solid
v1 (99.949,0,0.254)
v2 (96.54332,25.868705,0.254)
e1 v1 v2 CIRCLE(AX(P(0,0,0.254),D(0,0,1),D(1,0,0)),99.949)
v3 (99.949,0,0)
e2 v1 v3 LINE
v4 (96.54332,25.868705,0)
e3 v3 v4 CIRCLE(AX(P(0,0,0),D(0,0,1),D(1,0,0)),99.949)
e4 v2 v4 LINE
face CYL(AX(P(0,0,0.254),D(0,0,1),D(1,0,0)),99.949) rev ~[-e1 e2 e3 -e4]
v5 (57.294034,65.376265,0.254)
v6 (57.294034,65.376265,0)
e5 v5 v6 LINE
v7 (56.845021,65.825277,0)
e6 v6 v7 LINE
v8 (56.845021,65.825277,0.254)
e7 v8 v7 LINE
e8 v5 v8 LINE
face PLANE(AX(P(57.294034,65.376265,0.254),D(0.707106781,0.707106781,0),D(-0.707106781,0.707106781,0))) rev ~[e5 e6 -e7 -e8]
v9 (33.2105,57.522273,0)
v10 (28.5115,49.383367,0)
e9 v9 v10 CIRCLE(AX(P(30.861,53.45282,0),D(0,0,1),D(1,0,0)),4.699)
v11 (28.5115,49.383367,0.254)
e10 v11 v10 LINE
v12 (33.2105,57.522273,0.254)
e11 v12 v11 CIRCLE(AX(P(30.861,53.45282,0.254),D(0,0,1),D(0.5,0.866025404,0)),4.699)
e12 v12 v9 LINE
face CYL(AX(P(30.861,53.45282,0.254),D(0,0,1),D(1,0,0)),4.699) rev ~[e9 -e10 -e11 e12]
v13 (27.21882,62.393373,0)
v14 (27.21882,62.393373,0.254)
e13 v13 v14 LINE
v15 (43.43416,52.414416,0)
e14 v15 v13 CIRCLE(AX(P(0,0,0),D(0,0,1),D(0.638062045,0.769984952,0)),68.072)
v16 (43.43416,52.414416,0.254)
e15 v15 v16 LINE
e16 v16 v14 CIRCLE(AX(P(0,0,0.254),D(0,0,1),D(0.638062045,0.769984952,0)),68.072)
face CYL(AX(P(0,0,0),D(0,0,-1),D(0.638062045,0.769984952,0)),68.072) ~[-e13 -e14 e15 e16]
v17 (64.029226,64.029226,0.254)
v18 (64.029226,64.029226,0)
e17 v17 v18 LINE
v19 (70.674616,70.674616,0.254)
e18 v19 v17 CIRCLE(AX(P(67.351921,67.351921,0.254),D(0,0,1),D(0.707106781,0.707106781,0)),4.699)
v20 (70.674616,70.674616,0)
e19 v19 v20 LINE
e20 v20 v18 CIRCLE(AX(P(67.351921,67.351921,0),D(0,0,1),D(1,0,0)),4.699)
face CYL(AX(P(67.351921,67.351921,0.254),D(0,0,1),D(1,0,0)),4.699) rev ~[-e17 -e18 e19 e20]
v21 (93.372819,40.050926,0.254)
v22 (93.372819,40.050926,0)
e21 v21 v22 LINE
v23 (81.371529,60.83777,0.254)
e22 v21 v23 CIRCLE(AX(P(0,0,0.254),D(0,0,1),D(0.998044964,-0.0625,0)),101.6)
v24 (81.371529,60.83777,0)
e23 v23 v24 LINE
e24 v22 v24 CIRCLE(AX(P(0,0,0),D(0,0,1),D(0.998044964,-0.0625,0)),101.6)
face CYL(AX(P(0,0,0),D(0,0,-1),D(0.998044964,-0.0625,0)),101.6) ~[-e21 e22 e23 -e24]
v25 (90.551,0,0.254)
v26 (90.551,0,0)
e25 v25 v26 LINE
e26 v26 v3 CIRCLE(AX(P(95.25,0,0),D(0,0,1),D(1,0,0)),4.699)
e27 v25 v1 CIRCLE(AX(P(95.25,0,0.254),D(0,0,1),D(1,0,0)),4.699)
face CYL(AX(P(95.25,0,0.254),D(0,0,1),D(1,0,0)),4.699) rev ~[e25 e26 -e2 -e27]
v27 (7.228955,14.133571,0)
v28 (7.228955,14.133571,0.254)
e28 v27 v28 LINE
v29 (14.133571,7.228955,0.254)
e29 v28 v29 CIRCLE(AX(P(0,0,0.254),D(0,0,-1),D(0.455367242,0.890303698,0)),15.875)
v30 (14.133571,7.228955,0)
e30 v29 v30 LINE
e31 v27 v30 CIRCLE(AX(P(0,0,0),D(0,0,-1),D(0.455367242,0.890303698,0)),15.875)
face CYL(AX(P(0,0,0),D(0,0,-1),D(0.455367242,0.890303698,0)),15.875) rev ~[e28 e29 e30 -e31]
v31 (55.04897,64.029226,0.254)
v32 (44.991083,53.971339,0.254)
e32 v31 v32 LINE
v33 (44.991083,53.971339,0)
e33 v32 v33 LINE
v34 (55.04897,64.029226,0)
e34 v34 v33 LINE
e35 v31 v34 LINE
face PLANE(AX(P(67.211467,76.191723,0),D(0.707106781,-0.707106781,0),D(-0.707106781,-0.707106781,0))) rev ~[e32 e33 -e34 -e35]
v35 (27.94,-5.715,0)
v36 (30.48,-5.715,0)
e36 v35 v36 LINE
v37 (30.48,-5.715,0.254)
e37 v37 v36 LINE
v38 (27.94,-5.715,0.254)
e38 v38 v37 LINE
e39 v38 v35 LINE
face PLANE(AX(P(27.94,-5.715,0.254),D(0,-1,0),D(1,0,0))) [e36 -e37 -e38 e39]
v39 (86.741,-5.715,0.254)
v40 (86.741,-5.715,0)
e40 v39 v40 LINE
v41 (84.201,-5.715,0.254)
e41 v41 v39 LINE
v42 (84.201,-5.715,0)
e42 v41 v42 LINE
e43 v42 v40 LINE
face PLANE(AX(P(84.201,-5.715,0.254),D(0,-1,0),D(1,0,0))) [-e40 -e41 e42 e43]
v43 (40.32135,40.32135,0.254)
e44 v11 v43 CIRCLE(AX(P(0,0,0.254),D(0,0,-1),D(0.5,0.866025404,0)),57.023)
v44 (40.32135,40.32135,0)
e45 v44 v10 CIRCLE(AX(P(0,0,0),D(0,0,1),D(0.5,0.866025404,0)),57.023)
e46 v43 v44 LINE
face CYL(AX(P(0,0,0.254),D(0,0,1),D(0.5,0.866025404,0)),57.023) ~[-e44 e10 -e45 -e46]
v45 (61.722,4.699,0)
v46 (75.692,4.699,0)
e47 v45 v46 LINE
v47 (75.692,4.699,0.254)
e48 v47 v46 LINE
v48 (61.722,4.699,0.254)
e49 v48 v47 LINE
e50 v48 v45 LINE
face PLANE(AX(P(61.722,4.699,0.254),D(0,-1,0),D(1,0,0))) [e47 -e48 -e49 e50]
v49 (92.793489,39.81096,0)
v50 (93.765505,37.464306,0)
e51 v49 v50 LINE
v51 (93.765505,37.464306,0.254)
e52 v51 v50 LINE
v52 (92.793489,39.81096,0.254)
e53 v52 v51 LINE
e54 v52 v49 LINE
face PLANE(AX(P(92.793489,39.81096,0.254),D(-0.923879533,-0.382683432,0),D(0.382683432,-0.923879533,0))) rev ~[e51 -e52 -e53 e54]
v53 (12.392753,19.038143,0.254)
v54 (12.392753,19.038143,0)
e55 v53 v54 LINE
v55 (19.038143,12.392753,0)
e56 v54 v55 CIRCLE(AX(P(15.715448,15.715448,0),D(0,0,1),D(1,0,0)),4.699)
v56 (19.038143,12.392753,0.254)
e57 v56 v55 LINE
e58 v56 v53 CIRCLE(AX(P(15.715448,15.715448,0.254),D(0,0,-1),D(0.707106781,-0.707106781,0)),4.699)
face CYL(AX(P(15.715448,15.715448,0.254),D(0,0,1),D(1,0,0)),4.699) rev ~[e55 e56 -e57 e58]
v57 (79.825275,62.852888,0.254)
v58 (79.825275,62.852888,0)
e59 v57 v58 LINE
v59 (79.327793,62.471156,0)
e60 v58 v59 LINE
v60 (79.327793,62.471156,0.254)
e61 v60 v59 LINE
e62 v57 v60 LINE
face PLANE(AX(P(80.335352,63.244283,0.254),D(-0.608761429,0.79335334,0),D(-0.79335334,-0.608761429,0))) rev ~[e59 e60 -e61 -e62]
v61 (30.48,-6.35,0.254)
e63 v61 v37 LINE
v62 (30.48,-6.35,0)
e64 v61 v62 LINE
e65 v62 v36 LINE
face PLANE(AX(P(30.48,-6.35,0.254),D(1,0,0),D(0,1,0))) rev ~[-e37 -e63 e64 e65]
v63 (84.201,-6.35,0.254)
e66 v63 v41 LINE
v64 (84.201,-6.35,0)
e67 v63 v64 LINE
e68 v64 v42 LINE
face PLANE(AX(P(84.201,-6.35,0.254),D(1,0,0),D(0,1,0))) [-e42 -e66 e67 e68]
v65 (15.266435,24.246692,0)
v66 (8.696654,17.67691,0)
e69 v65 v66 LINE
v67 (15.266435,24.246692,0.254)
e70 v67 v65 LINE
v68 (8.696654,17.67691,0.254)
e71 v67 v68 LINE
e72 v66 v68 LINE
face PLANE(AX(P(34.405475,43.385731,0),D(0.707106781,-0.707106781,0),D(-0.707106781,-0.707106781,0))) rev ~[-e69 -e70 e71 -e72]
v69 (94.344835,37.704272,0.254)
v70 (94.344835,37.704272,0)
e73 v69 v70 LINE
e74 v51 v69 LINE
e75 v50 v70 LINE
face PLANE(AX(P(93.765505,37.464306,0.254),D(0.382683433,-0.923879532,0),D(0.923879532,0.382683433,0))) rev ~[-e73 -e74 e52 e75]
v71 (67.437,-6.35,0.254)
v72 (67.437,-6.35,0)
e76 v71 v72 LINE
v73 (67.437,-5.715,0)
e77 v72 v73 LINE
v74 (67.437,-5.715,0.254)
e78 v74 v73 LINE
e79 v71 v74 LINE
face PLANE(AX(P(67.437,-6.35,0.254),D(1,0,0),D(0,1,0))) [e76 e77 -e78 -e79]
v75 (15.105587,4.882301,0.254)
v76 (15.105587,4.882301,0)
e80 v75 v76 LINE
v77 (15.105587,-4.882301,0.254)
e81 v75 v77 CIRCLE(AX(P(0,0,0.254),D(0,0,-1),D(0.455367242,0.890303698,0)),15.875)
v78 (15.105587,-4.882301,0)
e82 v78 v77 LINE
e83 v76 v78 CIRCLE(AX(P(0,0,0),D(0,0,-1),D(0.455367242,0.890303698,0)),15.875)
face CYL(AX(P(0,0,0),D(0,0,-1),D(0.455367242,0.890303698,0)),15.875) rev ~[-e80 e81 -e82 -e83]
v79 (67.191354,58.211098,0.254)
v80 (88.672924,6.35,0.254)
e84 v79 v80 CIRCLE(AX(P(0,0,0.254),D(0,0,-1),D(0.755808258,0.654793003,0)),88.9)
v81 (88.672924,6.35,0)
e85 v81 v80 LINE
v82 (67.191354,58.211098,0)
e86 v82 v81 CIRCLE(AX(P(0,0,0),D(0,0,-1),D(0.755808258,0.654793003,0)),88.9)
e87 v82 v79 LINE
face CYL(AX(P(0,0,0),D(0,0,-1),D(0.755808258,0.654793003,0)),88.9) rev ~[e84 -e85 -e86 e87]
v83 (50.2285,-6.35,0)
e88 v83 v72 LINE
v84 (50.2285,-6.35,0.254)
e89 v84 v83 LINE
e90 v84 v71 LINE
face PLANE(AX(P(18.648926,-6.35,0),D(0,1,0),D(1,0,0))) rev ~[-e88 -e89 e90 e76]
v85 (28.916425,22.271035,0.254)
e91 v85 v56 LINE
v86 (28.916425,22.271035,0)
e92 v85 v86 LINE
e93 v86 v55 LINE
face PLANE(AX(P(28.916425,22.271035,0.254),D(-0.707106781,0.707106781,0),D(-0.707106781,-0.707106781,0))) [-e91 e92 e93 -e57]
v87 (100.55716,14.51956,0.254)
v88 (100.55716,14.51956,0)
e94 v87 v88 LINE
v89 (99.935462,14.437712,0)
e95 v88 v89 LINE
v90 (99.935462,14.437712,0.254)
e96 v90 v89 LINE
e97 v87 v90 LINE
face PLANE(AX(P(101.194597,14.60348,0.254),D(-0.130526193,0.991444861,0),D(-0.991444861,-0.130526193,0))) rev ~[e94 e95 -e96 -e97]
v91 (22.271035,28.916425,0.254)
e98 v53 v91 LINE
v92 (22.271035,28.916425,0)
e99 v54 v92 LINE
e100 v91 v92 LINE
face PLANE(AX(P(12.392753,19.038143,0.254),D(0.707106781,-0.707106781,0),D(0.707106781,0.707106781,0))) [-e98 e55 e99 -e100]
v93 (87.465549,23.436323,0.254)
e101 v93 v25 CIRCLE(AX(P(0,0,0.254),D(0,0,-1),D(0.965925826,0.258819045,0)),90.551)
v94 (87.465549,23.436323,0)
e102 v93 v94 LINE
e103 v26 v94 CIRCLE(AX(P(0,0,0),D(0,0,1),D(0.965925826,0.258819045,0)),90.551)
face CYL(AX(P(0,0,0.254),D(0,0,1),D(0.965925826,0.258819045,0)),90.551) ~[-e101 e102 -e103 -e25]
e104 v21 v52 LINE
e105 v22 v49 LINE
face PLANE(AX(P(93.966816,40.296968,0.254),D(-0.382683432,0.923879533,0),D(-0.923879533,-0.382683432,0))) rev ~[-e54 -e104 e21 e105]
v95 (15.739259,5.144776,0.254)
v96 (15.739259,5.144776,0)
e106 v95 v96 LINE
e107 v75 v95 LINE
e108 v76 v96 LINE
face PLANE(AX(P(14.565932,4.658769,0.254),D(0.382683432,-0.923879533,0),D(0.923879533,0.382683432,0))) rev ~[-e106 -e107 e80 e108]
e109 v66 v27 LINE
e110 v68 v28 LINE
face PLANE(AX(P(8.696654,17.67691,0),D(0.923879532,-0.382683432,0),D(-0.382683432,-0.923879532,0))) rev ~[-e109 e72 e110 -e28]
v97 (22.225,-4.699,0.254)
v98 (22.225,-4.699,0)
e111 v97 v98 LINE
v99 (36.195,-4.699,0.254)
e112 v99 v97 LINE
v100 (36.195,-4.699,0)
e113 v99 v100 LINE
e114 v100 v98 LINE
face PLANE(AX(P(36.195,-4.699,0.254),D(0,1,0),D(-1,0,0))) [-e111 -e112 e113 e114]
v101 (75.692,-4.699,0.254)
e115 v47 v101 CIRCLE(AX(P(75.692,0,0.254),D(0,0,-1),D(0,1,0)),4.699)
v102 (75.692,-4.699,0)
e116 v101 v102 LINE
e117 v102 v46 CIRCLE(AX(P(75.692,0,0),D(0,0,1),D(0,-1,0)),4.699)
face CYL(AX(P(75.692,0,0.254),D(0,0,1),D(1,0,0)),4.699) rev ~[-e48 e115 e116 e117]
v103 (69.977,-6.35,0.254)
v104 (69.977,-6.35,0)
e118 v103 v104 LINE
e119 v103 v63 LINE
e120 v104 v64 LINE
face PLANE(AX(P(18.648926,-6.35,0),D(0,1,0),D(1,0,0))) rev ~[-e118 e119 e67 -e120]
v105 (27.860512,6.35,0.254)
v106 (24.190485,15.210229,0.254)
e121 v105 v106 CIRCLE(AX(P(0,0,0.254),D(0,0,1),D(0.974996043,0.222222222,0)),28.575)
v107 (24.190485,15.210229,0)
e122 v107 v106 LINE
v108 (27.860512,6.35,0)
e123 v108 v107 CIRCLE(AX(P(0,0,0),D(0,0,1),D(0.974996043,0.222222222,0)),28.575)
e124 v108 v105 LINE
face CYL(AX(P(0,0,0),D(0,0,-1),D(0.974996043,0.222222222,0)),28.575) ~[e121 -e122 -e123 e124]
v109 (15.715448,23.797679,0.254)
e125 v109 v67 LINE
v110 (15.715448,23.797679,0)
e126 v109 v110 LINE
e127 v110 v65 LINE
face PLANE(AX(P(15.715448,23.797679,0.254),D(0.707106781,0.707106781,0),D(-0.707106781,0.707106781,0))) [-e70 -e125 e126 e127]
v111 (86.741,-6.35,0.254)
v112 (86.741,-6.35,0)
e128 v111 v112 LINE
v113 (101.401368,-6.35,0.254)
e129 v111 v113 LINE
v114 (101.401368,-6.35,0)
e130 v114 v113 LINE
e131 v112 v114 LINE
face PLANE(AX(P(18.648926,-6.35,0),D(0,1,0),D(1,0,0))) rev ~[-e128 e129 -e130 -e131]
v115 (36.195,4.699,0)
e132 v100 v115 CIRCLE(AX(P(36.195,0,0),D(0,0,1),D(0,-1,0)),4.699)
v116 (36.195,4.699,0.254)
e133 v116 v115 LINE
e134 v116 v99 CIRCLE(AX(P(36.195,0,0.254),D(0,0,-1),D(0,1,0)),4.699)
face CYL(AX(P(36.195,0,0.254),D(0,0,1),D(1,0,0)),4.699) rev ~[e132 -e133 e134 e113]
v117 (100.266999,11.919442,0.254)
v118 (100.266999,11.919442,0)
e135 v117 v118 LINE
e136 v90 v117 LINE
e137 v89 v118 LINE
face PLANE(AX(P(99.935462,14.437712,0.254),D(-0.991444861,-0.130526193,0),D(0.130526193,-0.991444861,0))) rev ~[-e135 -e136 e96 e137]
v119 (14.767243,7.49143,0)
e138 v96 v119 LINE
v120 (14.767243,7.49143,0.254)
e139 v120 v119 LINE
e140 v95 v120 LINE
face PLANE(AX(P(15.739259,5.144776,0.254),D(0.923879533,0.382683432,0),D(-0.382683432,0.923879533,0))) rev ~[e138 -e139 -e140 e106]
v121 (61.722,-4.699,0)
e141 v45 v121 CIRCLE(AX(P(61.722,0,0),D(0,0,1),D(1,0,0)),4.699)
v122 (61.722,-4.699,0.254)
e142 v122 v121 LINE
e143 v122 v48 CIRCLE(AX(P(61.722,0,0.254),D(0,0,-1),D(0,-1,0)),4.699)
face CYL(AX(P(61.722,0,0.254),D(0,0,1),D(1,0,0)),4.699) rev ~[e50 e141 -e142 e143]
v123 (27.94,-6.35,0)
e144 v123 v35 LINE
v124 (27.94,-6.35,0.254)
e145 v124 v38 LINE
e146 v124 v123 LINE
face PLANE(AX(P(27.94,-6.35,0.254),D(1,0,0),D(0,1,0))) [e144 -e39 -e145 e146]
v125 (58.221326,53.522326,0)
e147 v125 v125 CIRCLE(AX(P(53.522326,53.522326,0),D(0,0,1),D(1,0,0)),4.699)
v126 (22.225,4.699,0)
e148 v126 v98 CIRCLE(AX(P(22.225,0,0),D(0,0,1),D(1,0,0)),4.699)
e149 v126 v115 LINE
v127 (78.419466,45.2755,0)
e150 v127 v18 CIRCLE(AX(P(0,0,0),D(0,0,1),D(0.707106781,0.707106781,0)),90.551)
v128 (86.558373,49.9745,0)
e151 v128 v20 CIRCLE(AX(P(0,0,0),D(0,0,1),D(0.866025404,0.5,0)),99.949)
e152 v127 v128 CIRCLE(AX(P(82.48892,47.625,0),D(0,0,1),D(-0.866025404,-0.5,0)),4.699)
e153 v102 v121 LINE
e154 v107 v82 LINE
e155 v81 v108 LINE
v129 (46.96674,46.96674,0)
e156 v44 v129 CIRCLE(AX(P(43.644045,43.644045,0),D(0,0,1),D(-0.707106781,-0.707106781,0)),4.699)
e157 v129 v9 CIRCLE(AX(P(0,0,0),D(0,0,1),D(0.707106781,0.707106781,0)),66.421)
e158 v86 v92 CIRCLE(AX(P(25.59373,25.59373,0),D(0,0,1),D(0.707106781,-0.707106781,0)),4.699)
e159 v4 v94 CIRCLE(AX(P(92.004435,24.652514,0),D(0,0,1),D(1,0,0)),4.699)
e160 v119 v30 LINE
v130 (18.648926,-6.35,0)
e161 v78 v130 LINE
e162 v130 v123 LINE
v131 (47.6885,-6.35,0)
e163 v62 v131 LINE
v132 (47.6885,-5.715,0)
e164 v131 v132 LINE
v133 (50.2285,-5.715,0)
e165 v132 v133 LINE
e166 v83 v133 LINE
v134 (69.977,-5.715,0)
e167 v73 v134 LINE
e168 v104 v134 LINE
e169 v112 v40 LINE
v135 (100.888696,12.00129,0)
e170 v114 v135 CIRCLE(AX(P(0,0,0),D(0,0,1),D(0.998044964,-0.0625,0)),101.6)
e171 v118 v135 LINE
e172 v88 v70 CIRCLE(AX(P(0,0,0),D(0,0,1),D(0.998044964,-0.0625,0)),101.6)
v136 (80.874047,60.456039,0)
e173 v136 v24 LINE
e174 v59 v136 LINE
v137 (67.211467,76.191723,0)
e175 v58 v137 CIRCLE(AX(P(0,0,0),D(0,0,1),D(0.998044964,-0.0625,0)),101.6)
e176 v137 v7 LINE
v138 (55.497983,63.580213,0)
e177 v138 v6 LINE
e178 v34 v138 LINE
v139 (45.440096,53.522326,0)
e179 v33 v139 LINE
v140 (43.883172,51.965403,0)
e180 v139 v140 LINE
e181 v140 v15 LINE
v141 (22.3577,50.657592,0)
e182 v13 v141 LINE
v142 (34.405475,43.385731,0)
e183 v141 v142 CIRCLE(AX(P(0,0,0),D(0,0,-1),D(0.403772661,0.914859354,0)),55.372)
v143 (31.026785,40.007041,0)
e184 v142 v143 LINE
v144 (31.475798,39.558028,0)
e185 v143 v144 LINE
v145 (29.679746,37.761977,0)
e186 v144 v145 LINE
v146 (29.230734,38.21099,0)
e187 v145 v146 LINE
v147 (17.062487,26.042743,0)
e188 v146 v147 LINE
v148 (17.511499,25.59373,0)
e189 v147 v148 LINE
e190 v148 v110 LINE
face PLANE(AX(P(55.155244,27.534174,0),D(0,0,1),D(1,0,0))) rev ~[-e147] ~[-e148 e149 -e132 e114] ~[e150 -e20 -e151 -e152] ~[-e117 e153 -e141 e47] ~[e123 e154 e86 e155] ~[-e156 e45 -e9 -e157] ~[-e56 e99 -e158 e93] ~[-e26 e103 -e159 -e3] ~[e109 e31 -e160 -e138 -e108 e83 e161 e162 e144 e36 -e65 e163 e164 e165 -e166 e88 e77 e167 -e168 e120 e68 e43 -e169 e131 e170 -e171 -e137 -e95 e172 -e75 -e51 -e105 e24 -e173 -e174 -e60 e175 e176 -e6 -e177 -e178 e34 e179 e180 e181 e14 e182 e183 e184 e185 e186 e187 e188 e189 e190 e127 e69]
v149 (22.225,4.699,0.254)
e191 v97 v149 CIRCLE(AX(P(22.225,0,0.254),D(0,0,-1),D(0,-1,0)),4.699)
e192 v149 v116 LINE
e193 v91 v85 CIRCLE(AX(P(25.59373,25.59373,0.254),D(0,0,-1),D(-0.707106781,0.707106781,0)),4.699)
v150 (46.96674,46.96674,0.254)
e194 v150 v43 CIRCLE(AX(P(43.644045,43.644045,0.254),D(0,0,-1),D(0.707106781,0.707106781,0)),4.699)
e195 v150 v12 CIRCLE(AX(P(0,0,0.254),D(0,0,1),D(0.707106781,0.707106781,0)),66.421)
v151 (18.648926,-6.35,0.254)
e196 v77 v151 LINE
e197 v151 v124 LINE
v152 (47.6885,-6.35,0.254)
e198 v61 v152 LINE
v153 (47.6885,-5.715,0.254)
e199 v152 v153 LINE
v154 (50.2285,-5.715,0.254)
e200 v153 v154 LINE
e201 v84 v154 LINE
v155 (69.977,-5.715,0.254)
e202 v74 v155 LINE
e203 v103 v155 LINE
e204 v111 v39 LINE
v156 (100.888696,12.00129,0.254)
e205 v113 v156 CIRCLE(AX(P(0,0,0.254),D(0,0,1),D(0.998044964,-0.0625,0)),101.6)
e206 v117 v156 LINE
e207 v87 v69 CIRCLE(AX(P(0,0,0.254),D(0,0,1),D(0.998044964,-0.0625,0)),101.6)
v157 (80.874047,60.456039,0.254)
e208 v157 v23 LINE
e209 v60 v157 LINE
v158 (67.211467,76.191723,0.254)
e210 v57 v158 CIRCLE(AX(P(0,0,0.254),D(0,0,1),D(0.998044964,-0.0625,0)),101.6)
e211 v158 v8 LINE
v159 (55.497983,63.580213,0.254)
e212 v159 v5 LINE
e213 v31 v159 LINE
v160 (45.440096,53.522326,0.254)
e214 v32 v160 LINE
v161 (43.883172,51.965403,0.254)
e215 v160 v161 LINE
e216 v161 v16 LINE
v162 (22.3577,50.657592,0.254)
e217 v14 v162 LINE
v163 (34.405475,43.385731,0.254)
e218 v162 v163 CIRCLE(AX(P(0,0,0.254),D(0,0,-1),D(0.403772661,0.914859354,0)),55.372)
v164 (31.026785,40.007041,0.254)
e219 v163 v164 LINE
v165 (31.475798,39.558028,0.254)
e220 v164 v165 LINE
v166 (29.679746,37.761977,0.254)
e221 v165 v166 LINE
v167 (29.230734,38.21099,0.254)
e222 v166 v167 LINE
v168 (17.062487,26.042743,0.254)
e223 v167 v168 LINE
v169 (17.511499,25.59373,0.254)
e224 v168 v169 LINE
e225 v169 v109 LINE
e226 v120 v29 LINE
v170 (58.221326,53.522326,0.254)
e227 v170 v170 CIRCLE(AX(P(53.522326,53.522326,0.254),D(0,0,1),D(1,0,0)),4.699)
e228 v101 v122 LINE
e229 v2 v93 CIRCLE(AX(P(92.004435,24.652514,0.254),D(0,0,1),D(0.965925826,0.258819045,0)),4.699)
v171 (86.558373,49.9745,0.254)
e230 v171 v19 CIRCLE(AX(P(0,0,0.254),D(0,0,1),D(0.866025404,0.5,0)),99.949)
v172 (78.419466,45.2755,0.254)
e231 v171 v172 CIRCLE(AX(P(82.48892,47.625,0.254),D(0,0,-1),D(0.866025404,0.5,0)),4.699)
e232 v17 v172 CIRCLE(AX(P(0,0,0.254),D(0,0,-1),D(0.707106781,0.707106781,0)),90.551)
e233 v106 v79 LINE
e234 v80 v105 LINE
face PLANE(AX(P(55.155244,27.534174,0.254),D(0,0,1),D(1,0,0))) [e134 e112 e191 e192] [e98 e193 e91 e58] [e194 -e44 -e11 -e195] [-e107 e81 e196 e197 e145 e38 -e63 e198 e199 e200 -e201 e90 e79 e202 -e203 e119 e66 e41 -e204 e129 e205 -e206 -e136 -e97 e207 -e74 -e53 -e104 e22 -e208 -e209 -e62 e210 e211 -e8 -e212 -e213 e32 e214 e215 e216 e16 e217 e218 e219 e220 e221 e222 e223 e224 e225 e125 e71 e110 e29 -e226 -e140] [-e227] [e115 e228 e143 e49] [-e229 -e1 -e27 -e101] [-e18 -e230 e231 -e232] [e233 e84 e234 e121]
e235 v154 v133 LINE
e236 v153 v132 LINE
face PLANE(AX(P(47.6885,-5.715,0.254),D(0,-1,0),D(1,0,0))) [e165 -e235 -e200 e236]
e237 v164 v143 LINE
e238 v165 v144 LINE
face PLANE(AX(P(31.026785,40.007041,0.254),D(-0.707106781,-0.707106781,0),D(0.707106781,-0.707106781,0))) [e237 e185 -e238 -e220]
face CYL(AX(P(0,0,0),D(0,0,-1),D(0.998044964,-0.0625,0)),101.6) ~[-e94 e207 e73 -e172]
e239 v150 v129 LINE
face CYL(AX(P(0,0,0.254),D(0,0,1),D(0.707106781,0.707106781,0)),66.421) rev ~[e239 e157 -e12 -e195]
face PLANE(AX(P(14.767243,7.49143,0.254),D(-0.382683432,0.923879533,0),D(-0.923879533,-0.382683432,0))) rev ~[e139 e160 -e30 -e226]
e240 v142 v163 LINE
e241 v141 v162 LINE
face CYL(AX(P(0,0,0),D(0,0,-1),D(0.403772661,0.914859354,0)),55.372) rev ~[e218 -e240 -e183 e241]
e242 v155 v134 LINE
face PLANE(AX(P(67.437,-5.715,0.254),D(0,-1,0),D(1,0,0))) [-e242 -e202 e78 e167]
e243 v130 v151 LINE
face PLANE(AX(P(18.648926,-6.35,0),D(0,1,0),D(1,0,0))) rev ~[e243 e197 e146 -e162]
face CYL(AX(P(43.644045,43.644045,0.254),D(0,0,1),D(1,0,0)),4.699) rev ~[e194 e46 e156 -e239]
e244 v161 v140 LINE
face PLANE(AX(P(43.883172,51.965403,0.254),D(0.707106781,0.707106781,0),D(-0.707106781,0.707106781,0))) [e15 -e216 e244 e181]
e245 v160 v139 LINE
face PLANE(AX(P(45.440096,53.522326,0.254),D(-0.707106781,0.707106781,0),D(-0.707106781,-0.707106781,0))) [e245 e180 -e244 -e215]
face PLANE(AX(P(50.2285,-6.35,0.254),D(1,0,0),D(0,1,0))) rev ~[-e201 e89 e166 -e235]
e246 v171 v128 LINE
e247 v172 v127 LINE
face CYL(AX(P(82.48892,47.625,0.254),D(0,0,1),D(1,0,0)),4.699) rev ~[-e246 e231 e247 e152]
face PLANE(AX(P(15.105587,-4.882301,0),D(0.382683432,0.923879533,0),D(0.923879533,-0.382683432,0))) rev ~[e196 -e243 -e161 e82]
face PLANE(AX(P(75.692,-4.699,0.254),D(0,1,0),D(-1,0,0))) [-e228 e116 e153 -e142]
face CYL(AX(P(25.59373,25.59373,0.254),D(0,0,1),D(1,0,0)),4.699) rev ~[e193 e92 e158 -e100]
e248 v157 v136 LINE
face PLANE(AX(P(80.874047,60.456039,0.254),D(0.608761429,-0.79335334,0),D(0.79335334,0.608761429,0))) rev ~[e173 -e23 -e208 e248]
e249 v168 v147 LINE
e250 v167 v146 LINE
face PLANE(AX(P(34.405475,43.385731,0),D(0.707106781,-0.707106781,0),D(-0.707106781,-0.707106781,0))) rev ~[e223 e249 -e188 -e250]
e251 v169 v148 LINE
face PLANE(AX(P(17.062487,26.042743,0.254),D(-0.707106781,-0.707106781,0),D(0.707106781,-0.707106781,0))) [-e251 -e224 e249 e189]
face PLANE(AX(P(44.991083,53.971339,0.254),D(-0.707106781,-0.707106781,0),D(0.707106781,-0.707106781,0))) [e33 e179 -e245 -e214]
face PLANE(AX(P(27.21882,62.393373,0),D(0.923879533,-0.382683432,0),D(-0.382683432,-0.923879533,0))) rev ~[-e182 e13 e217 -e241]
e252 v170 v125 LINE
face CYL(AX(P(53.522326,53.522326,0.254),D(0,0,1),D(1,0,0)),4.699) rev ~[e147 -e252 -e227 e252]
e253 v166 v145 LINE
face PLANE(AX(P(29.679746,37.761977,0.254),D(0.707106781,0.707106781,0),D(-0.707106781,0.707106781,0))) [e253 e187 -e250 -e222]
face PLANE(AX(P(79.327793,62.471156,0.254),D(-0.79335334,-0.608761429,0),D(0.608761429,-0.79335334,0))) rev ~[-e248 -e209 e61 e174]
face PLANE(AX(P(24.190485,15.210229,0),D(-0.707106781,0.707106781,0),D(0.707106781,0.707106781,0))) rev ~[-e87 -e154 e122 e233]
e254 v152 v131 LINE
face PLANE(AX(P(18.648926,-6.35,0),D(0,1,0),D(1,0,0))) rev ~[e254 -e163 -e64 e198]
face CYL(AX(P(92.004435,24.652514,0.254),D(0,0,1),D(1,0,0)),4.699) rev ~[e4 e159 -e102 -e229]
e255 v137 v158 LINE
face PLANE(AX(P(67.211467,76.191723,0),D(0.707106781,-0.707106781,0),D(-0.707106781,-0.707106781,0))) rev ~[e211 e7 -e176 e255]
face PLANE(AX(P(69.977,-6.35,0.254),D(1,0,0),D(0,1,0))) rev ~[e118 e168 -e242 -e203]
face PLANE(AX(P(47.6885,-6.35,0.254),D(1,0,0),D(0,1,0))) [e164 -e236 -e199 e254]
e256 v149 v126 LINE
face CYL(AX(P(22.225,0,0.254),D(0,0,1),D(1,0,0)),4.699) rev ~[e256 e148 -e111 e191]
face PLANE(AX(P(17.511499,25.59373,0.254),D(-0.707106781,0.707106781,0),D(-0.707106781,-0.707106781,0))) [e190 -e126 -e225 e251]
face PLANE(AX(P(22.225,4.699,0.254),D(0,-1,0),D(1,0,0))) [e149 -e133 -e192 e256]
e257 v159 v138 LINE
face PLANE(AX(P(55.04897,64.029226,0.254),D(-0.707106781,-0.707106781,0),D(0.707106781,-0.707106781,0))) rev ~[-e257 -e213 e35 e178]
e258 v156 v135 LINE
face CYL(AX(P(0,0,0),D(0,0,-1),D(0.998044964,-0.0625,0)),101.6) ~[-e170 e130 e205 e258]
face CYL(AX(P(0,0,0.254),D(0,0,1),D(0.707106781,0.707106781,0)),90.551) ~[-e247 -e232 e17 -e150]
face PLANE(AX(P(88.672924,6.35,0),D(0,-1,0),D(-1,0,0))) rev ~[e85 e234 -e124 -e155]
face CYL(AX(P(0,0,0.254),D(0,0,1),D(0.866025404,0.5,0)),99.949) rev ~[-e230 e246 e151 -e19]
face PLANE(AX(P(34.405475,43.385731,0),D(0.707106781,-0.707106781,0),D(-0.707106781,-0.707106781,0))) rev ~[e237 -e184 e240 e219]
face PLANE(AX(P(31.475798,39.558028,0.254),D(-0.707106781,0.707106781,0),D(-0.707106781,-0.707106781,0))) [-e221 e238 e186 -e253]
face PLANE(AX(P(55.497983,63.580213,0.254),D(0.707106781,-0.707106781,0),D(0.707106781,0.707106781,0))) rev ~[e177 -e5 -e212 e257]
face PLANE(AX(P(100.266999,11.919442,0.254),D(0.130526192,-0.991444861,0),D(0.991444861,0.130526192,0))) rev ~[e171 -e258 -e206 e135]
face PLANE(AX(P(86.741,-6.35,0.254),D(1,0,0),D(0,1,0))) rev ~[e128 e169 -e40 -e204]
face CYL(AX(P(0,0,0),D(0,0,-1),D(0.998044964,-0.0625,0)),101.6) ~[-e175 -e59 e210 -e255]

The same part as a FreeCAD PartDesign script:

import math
import FreeCAD as App
import Part
import Sketcher

V = App.Vector
Q = App.Units.Quantity

doc = App.newDocument("Part")
body = doc.addObject("PartDesign::Body", "Body")

sketch1 = body.newObject("Sketcher::SketchObject", "Sketch")
sketch1.AttachmentSupport = (doc.getObject("XY_Plane"), [""])
sketch1.MapMode = "FlatFace"
sketch1.addGeometry([
    Part.LineSegment(V(27.21882, 62.393373, 0), V(22.3577, 50.657592, 0)),
    Part.ArcOfCircle(Part.Circle(V(0, 0, 0), V(0, 0, 1), 55.372), math.radians(51.585105), math.radians(66.185761)),
    Part.LineSegment(V(34.405475, 43.385731, 0), V(8.696654, 17.67691, 0)),
    Part.LineSegment(V(8.696654, 17.67691, 0), V(7.228955, 14.133571, 0)),
    Part.ArcOfCircle(Part.Circle(V(0, 0, 0), V(0, 0, 1), 15.875), math.radians(-17.911434), math.radians(62.911434)),
    Part.LineSegment(V(15.105587, -4.882301, 0), V(18.648926, -6.35, 0)),
    Part.LineSegment(V(18.648926, -6.35, 0), V(101.401368, -6.35, 0)),
    Part.ArcOfCircle(Part.Circle(V(0, 0, 0), V(0, 0, 1), 101.6), math.radians(-3.583322), math.radians(48.583322)),
    Part.LineSegment(V(67.211467, 76.191723, 0), V(43.43416, 52.414416, 0)),
    Part.ArcOfCircle(Part.Circle(V(0, 0, 0), V(0, 0, 1), 68.072), math.radians(50.352538), math.radians(66.430987)),
    Part.ArcOfCircle(Part.Circle(V(0, 0, 0), V(0, 0, 1), 88.9), math.radians(4.096044), math.radians(40.903956)),
    Part.LineSegment(V(88.672924, 6.35, 0), V(27.860512, 6.35, 0)),
    Part.ArcOfCircle(Part.Circle(V(0, 0, 0), V(0, 0, 1), 28.575), math.radians(12.839588), math.radians(32.160412)),
    Part.LineSegment(V(24.190485, 15.210229, 0), V(67.191354, 58.211098, 0)),
], False)
sketch1.addConstraint([
    Sketcher.Constraint("Coincident", 0, 2, 1, 2),
    Sketcher.Constraint("Coincident", 1, 1, 2, 1),
    Sketcher.Constraint("Coincident", 2, 2, 3, 1),
    Sketcher.Constraint("Coincident", 3, 2, 4, 2),
    Sketcher.Constraint("Coincident", 4, 1, 5, 1),
    Sketcher.Constraint("Coincident", 5, 2, 6, 1),
    Sketcher.Constraint("Coincident", 6, 2, 7, 1),
    Sketcher.Constraint("Coincident", 7, 2, 8, 1),
    Sketcher.Constraint("Coincident", 8, 2, 9, 1),
    Sketcher.Constraint("Coincident", 9, 2, 0, 1),
    Sketcher.Constraint("Coincident", 10, 1, 11, 1),
    Sketcher.Constraint("Coincident", 11, 2, 12, 1),
    Sketcher.Constraint("Coincident", 12, 2, 13, 1),
    Sketcher.Constraint("Coincident", 13, 2, 10, 2),
    Sketcher.Constraint("Horizontal", 6),
    Sketcher.Constraint("Horizontal", 11),
    Sketcher.Constraint("Coincident", 1, 3, -1, 1),
    Sketcher.Constraint("Coincident", 4, 3, -1, 1),
    Sketcher.Constraint("Coincident", 7, 3, -1, 1),
    Sketcher.Constraint("Coincident", 9, 3, -1, 1),
    Sketcher.Constraint("Coincident", 10, 3, -1, 1),
    Sketcher.Constraint("Coincident", 12, 3, -1, 1),
    Sketcher.Constraint("Parallel", 0, 3),
    Sketcher.Constraint("Perpendicular", 3, 5),
    Sketcher.Constraint("Parallel", 2, 8),
    Sketcher.Constraint("Parallel", 8, 13),
    Sketcher.Constraint("Equal", 3, 5),
    Sketcher.Constraint("Radius", 7, Q("4 in")),
    Sketcher.Constraint("Radius", 10, Q("3.5 in")),
    Sketcher.Constraint("Radius", 1, Q("2.18 in")),
    Sketcher.Constraint("Radius", 9, Q("2.68 in")),
    Sketcher.Constraint("Angle", 2, Q("-135 deg")),
    Sketcher.Constraint("Radius", 4, Q("0.625 in")),
    Sketcher.Constraint("Radius", 12, Q("1.125 in")),
    Sketcher.Constraint("Angle", 0, Q("-112.5 deg")),
    Sketcher.Constraint("DistanceY", 6, 2, 10, 1, Q("0.5 in")),
    Sketcher.Constraint("DistanceY", 5, 2, -1, 1, Q("0.25 in")),
    Sketcher.Constraint("DistanceX", -1, 1, 0, 2, 22.3577),
    Sketcher.Constraint("DistanceY", 4, 1, -1, 1, 4.882301),
    Sketcher.Constraint("DistanceY", -1, 1, 13, 2, 58.211098),
    Sketcher.Constraint("DistanceX", 7, 2, 6, 2, 34.189901),
    Sketcher.Constraint("DistanceY", -1, 1, 1, 1, 43.385731),
])
pad1 = body.newObject("PartDesign::Pad", "Pad")
pad1.Profile = sketch1
pad1.Length = Q("0.01 in")

sketch2 = body.newObject("Sketcher::SketchObject", "Sketch001")
sketch2.AttachmentSupport = (doc.getObject("XY_Plane"), [""])
sketch2.MapMode = "FlatFace"
sketch2.AttachmentOffset = App.Placement(V(0, 0, 0.01 * 25.4), App.Rotation())
sketch2.addGeometry([
    Part.Circle(V(22.225, 0, 0), V(0, 0, 1), 4.699),
    Part.Circle(V(36.195, 0, 0), V(0, 0, 1), 4.699),
    Part.Circle(V(61.722, 0, 0), V(0, 0, 1), 4.699),
    Part.Circle(V(75.692, 0, 0), V(0, 0, 1), 4.699),
    Part.Circle(V(95.25, 0, 0), V(0, 0, 1), 4.699),
    Part.Circle(V(15.715448, 15.715448, 0), V(0, 0, 1), 4.699),
    Part.Circle(V(25.59373, 25.59373, 0), V(0, 0, 1), 4.699),
    Part.Circle(V(43.644045, 43.644045, 0), V(0, 0, 1), 4.699),
    Part.Circle(V(53.522326, 53.522326, 0), V(0, 0, 1), 4.699),
    Part.Circle(V(92.004435, 24.652514, 0), V(0, 0, 1), 4.699),
    Part.Circle(V(82.48892, 47.625, 0), V(0, 0, 1), 4.699),
    Part.Circle(V(67.351921, 67.351921, 0), V(0, 0, 1), 4.699),
    Part.Circle(V(30.861, 53.45282, 0), V(0, 0, 1), 4.699),
], False)
sketch2.addConstraint([
    Sketcher.Constraint("Equal", 0, 1),
    Sketcher.Constraint("Equal", 1, 2),
    Sketcher.Constraint("Equal", 2, 3),
    Sketcher.Constraint("Equal", 3, 4),
    Sketcher.Constraint("Equal", 4, 5),
    Sketcher.Constraint("Equal", 5, 6),
    Sketcher.Constraint("Equal", 6, 7),
    Sketcher.Constraint("Equal", 7, 8),
    Sketcher.Constraint("Equal", 8, 9),
    Sketcher.Constraint("Equal", 9, 10),
    Sketcher.Constraint("Equal", 10, 11),
    Sketcher.Constraint("Equal", 11, 12),
    Sketcher.Constraint("PointOnObject", 0, 3, -1),
    Sketcher.Constraint("PointOnObject", 1, 3, -1),
    Sketcher.Constraint("PointOnObject", 2, 3, -1),
    Sketcher.Constraint("PointOnObject", 3, 3, -1),
    Sketcher.Constraint("PointOnObject", 4, 3, -1),
    Sketcher.Constraint("Diameter", 0, Q("0.37 in")),
    Sketcher.Constraint("DistanceX", -1, 1, 2, 3, Q("2.43 in")),
    Sketcher.Constraint("DistanceX", -1, 1, 3, 3, Q("2.98 in")),
    Sketcher.Constraint("DistanceX", -1, 1, 4, 3, Q("3.75 in")),
    Sketcher.Constraint("DistanceX", 0, 3, 1, 3, Q("0.55 in")),
    Sketcher.Constraint("DistanceX", -1, 1, 0, 3, Q("0.875 in")),
    Sketcher.Constraint("DistanceY", -1, 1, 10, 3, Q("1.875 in")),
    Sketcher.Constraint("DistanceX", -1, 1, 12, 3, Q("1.215 in")),
    Sketcher.Constraint("DistanceX", 11, 3, 10, 3, 15.136999),
    Sketcher.Constraint("DistanceY", 12, 3, 11, 3, 13.899101),
    Sketcher.Constraint("DistanceX", -1, 1, 5, 3, 15.715448),
    Sketcher.Constraint("DistanceY", -1, 1, 5, 3, 15.715448),
    Sketcher.Constraint("DistanceX", -1, 1, 6, 3, 25.59373),
    Sketcher.Constraint("DistanceY", -1, 1, 6, 3, 25.59373),
    Sketcher.Constraint("DistanceX", -1, 1, 10, 3, 82.48892),
    Sketcher.Constraint("DistanceY", -1, 1, 11, 3, 67.351921),
    Sketcher.Constraint("DistanceX", 7, 3, 8, 3, 9.878282),
    Sketcher.Constraint("DistanceY", 7, 3, 8, 3, 9.878282),
    Sketcher.Constraint("DistanceX", 5, 3, 8, 3, 37.806878),
    Sketcher.Constraint("DistanceY", 5, 3, 8, 3, 37.806878),
    Sketcher.Constraint("DistanceX", 8, 3, 9, 3, 38.482108),
    Sketcher.Constraint("DistanceY", 9, 3, 7, 3, 18.991531),
])
pocket1 = body.newObject("PartDesign::Pocket", "Pocket")
pocket1.Profile = sketch2
pocket1.Type = "ThroughAll"

sketch3 = body.newObject("Sketcher::SketchObject", "Sketch002")
sketch3.AttachmentSupport = (doc.getObject("XY_Plane"), [""])
sketch3.MapMode = "FlatFace"
sketch3.AttachmentOffset = App.Placement(V(0, 0, 0.01 * 25.4), App.Rotation())
sketch3.addGeometry([
    Part.LineSegment(V(17.062487, 26.042743, 0), V(15.266435, 24.246692, 0)),
    Part.LineSegment(V(15.266435, 24.246692, 0), V(15.715448, 23.797679, 0)),
    Part.LineSegment(V(15.715448, 23.797679, 0), V(17.511499, 25.59373, 0)),
    Part.LineSegment(V(17.511499, 25.59373, 0), V(17.062487, 26.042743, 0)),
    Part.LineSegment(V(44.991083, 53.971339, 0), V(43.43416, 52.414416, 0)),
    Part.LineSegment(V(43.43416, 52.414416, 0), V(43.883172, 51.965403, 0)),
    Part.LineSegment(V(43.883172, 51.965403, 0), V(45.440096, 53.522326, 0)),
    Part.LineSegment(V(45.440096, 53.522326, 0), V(44.991083, 53.971339, 0)),
    Part.LineSegment(V(27.94, -5.715, 0), V(27.94, -6.35, 0)),
    Part.LineSegment(V(27.94, -6.35, 0), V(30.48, -6.35, 0)),
    Part.LineSegment(V(30.48, -6.35, 0), V(30.48, -5.715, 0)),
    Part.LineSegment(V(30.48, -5.715, 0), V(27.94, -5.715, 0)),
    Part.LineSegment(V(67.437, -5.715, 0), V(67.437, -6.35, 0)),
    Part.LineSegment(V(67.437, -6.35, 0), V(69.977, -6.35, 0)),
    Part.LineSegment(V(69.977, -6.35, 0), V(69.977, -5.715, 0)),
    Part.LineSegment(V(69.977, -5.715, 0), V(67.437, -5.715, 0)),
    Part.LineSegment(V(31.026785, 40.007041, 0), V(29.230734, 38.21099, 0)),
    Part.LineSegment(V(29.230734, 38.21099, 0), V(29.679746, 37.761977, 0)),
    Part.LineSegment(V(29.679746, 37.761977, 0), V(31.475798, 39.558028, 0)),
    Part.LineSegment(V(31.475798, 39.558028, 0), V(31.026785, 40.007041, 0)),
    Part.LineSegment(V(56.845021, 65.825277, 0), V(55.04897, 64.029226, 0)),
    Part.LineSegment(V(55.04897, 64.029226, 0), V(55.497983, 63.580213, 0)),
    Part.LineSegment(V(55.497983, 63.580213, 0), V(57.294034, 65.376265, 0)),
    Part.LineSegment(V(57.294034, 65.376265, 0), V(56.845021, 65.825277, 0)),
    Part.LineSegment(V(47.6885, -5.715, 0), V(47.6885, -6.35, 0)),
    Part.LineSegment(V(47.6885, -6.35, 0), V(50.2285, -6.35, 0)),
    Part.LineSegment(V(50.2285, -6.35, 0), V(50.2285, -5.715, 0)),
    Part.LineSegment(V(50.2285, -5.715, 0), V(47.6885, -5.715, 0)),
    Part.LineSegment(V(84.201, -5.715, 0), V(84.201, -6.35, 0)),
    Part.LineSegment(V(84.201, -6.35, 0), V(86.741, -6.35, 0)),
    Part.LineSegment(V(86.741, -6.35, 0), V(86.741, -5.715, 0)),
    Part.LineSegment(V(86.741, -5.715, 0), V(84.201, -5.715, 0)),
    Part.LineSegment(V(99.935462, 14.437712, 0), V(100.266999, 11.919442, 0)),
    Part.LineSegment(V(100.266999, 11.919442, 0), V(101.526134, 12.08521, 0)),
    Part.LineSegment(V(101.526134, 12.08521, 0), V(101.194597, 14.60348, 0)),
    Part.LineSegment(V(101.194597, 14.60348, 0), V(99.935462, 14.437712, 0)),
    Part.LineSegment(V(93.765505, 37.464306, 0), V(94.938832, 37.950314, 0)),
    Part.LineSegment(V(94.938832, 37.950314, 0), V(93.966816, 40.296968, 0)),
    Part.LineSegment(V(93.966816, 40.296968, 0), V(92.793489, 39.81096, 0)),
    Part.LineSegment(V(92.793489, 39.81096, 0), V(93.765505, 37.464306, 0)),
    Part.LineSegment(V(79.327793, 62.471156, 0), V(80.874047, 60.456039, 0)),
    Part.LineSegment(V(80.874047, 60.456039, 0), V(81.881606, 61.229166, 0)),
    Part.LineSegment(V(81.881606, 61.229166, 0), V(80.335352, 63.244283, 0)),
    Part.LineSegment(V(80.335352, 63.244283, 0), V(79.327793, 62.471156, 0)),
    Part.LineSegment(V(13.593916, 7.005423, 0), V(14.565932, 4.658769, 0)),
    Part.LineSegment(V(14.565932, 4.658769, 0), V(15.739259, 5.144776, 0)),
    Part.LineSegment(V(15.739259, 5.144776, 0), V(14.767243, 7.49143, 0)),
    Part.LineSegment(V(14.767243, 7.49143, 0), V(13.593916, 7.005423, 0)),
], False)
sketch3.addConstraint([
    Sketcher.Constraint("Coincident", 0, 2, 1, 1),
    Sketcher.Constraint("Coincident", 1, 2, 2, 1),
    Sketcher.Constraint("Coincident", 2, 2, 3, 1),
    Sketcher.Constraint("Coincident", 3, 2, 0, 1),
    Sketcher.Constraint("Coincident", 4, 2, 5, 1),
    Sketcher.Constraint("Coincident", 5, 2, 6, 1),
    Sketcher.Constraint("Coincident", 6, 2, 7, 1),
    Sketcher.Constraint("Coincident", 7, 2, 4, 1),
    Sketcher.Constraint("Coincident", 8, 2, 9, 1),
    Sketcher.Constraint("Coincident", 9, 2, 10, 1),
    Sketcher.Constraint("Coincident", 10, 2, 11, 1),
    Sketcher.Constraint("Coincident", 11, 2, 8, 1),
    Sketcher.Constraint("Coincident", 12, 2, 13, 1),
    Sketcher.Constraint("Coincident", 13, 2, 14, 1),
    Sketcher.Constraint("Coincident", 14, 2, 15, 1),
    Sketcher.Constraint("Coincident", 15, 2, 12, 1),
    Sketcher.Constraint("Coincident", 16, 2, 17, 1),
    Sketcher.Constraint("Coincident", 17, 2, 18, 1),
    Sketcher.Constraint("Coincident", 18, 2, 19, 1),
    Sketcher.Constraint("Coincident", 19, 2, 16, 1),
    Sketcher.Constraint("Coincident", 20, 2, 21, 1),
    Sketcher.Constraint("Coincident", 21, 2, 22, 1),
    Sketcher.Constraint("Coincident", 22, 2, 23, 1),
    Sketcher.Constraint("Coincident", 23, 2, 20, 1),
    Sketcher.Constraint("Coincident", 24, 2, 25, 1),
    Sketcher.Constraint("Coincident", 25, 2, 26, 1),
    Sketcher.Constraint("Coincident", 26, 2, 27, 1),
    Sketcher.Constraint("Coincident", 27, 2, 24, 1),
    Sketcher.Constraint("Coincident", 28, 2, 29, 1),
    Sketcher.Constraint("Coincident", 29, 2, 30, 1),
    Sketcher.Constraint("Coincident", 30, 2, 31, 1),
    Sketcher.Constraint("Coincident", 31, 2, 28, 1),
    Sketcher.Constraint("Coincident", 32, 2, 33, 1),
    Sketcher.Constraint("Coincident", 33, 2, 34, 1),
    Sketcher.Constraint("Coincident", 34, 2, 35, 1),
    Sketcher.Constraint("Coincident", 35, 2, 32, 1),
    Sketcher.Constraint("Coincident", 36, 2, 37, 1),
    Sketcher.Constraint("Coincident", 37, 2, 38, 1),
    Sketcher.Constraint("Coincident", 38, 2, 39, 1),
    Sketcher.Constraint("Coincident", 39, 2, 36, 1),
    Sketcher.Constraint("Coincident", 40, 2, 41, 1),
    Sketcher.Constraint("Coincident", 41, 2, 42, 1),
    Sketcher.Constraint("Coincident", 42, 2, 43, 1),
    Sketcher.Constraint("Coincident", 43, 2, 40, 1),
    Sketcher.Constraint("Coincident", 44, 2, 45, 1),
    Sketcher.Constraint("Coincident", 45, 2, 46, 1),
    Sketcher.Constraint("Coincident", 46, 2, 47, 1),
    Sketcher.Constraint("Coincident", 47, 2, 44, 1),
    Sketcher.Constraint("Vertical", 8),
    Sketcher.Constraint("Horizontal", 9),
    Sketcher.Constraint("Vertical", 10),
    Sketcher.Constraint("Horizontal", 11),
    Sketcher.Constraint("Vertical", 12),
    Sketcher.Constraint("Horizontal", 13),
    Sketcher.Constraint("Vertical", 14),
    Sketcher.Constraint("Horizontal", 15),
    Sketcher.Constraint("Vertical", 24),
    Sketcher.Constraint("Horizontal", 25),
    Sketcher.Constraint("Vertical", 26),
    Sketcher.Constraint("Horizontal", 27),
    Sketcher.Constraint("Vertical", 28),
    Sketcher.Constraint("Horizontal", 29),
    Sketcher.Constraint("Vertical", 30),
    Sketcher.Constraint("Horizontal", 31),
    Sketcher.Constraint("Perpendicular", 0, 1),
    Sketcher.Constraint("Perpendicular", 1, 2),
    Sketcher.Constraint("Perpendicular", 2, 3),
    Sketcher.Constraint("Perpendicular", 3, 4),
    Sketcher.Constraint("Perpendicular", 4, 5),
    Sketcher.Constraint("Perpendicular", 5, 6),
    Sketcher.Constraint("Perpendicular", 6, 7),
    Sketcher.Constraint("Perpendicular", 7, 16),
    Sketcher.Constraint("Perpendicular", 16, 17),
    Sketcher.Constraint("Perpendicular", 17, 18),
    Sketcher.Constraint("Perpendicular", 18, 19),
    Sketcher.Constraint("Perpendicular", 19, 20),
    Sketcher.Constraint("Perpendicular", 20, 21),
    Sketcher.Constraint("Perpendicular", 21, 22),
    Sketcher.Constraint("Perpendicular", 22, 23),
    Sketcher.Constraint("Perpendicular", 32, 33),
    Sketcher.Constraint("Perpendicular", 33, 34),
    Sketcher.Constraint("Perpendicular", 34, 35),
    Sketcher.Constraint("Perpendicular", 36, 37),
    Sketcher.Constraint("Perpendicular", 37, 38),
    Sketcher.Constraint("Perpendicular", 38, 39),
    Sketcher.Constraint("Perpendicular", 40, 41),
    Sketcher.Constraint("Perpendicular", 41, 42),
    Sketcher.Constraint("Perpendicular", 42, 43),
    Sketcher.Constraint("Parallel", 39, 44),
    Sketcher.Constraint("Perpendicular", 44, 45),
    Sketcher.Constraint("Perpendicular", 45, 46),
    Sketcher.Constraint("Perpendicular", 46, 47),
    Sketcher.Constraint("Horizontal", 9, 2, 12, 2),
    Sketcher.Constraint("Horizontal", 11, 2, 14, 2),
    Sketcher.Constraint("Horizontal", 13, 2, 24, 2),
    Sketcher.Constraint("Horizontal", 15, 2, 26, 2),
    Sketcher.Constraint("Horizontal", 25, 2, 28, 2),
    Sketcher.Constraint("Horizontal", 27, 2, 30, 2),
    Sketcher.Constraint("Equal", 11, 13),
    Sketcher.Constraint("Equal", 15, 25),
    Sketcher.Constraint("Equal", 27, 29),
    Sketcher.Constraint("Equal", 3, 5),
    Sketcher.Constraint("Equal", 2, 16),
    Sketcher.Constraint("Equal", 7, 17),
    Sketcher.Constraint("Equal", 18, 20),
    Sketcher.Constraint("Equal", 19, 21),
    Sketcher.Constraint("Equal", 22, 32),
    Sketcher.Constraint("Equal", 35, 36),
    Sketcher.Constraint("Equal", 34, 37),
    Sketcher.Constraint("Equal", 39, 40),
    Sketcher.Constraint("Equal", 38, 41),
    Sketcher.Constraint("Equal", 42, 44),
    Sketcher.Constraint("Equal", 43, 45),
    Sketcher.Constraint("DistanceX", 9, 1, 9, 2, Q("0.1 in")),
    Sketcher.Constraint("Angle", 0, Q("-135 deg")),
    Sketcher.Constraint("Distance", 0, Q("0.1 in")),
    Sketcher.Constraint("DistanceX", -1, 1, 8, 2, Q("1.1 in")),
    Sketcher.Constraint("Angle", 32, Q("-82.5 deg")),
    Sketcher.Constraint("Angle", 36, Q("22.5 deg")),
    Sketcher.Constraint("Angle", 40, Q("-52.5 deg")),
    Sketcher.Constraint("Distance", 33, Q("0.05 in")),
    Sketcher.Constraint("DistanceY", 8, 2, 8, 1, Q("0.025 in")),
    Sketcher.Constraint("DistanceY", 8, 2, -1, 1, Q("0.25 in")),
    Sketcher.Constraint("DistanceX", 13, 2, 28, 2, Q("0.56 in")),
    Sketcher.Constraint("Distance", 1, Q("0.025 in")),
    Sketcher.Constraint("DistanceX", -1, 1, 12, 2, Q("2.655 in")),
    Sketcher.Constraint("DistanceX", -1, 1, 24, 2, Q("1.8775 in")),
    Sketcher.Constraint("DistanceX", -1, 1, 2, 2, 17.511499),
    Sketcher.Constraint("DistanceX", -1, 1, 32, 2, 100.266999),
    Sketcher.Constraint("DistanceX", 0, 2, 16, 2, 13.964298),
    Sketcher.Constraint("DistanceY", 0, 2, 16, 2, 13.964298),
    Sketcher.Constraint("DistanceY", 6, 2, 20, 2, 10.5069),
    Sketcher.Constraint("DistanceX", 7, 2, 21, 2, 10.5069),
    Sketcher.Constraint("DistanceY", 35, 2, 36, 2, 23.512602),
    Sketcher.Constraint("DistanceX", 36, 2, 33, 2, 6.587302),
    Sketcher.Constraint("DistanceY", 37, 2, 41, 2, 20.932198),
    Sketcher.Constraint("DistanceY", 41, 2, 22, 2, 4.147099),
    Sketcher.Constraint("DistanceY", 46, 2, 2, 2, 18.102299),
    Sketcher.Constraint("DistanceY", -1, 1, 0, 2, 24.246692),
    Sketcher.Constraint("DistanceX", -1, 1, 4, 2, 43.43416),
    Sketcher.Constraint("DistanceY", -1, 1, 7, 2, 53.971339),
    Sketcher.Constraint("DistanceX", -1, 1, 20, 2, 55.04897),
    Sketcher.Constraint("DistanceX", -1, 1, 42, 2, 80.335352),
    Sketcher.Constraint("DistanceX", -1, 1, 45, 2, 15.739259),
])
pocket2 = body.newObject("PartDesign::Pocket", "Pocket001")
pocket2.Profile = sketch3
pocket2.Type = "ThroughAll"

sketch4 = body.newObject("Sketcher::SketchObject", "Sketch003")
sketch4.AttachmentSupport = (doc.getObject("XY_Plane"), [""])
sketch4.MapMode = "FlatFace"
sketch4.AttachmentOffset = App.Placement(V(0, 0, 0.01 * 25.4), App.Rotation())
sketch4.addGeometry([
    Part.LineSegment(V(22.271035, 28.916425, 0), V(12.392753, 19.038143, 0)),
    Part.ArcOfCircle(Part.Circle(V(15.715448, 15.715448, 0), V(0, 0, 1), 4.699), math.radians(135), math.radians(315)),
    Part.LineSegment(V(19.038143, 12.392753, 0), V(28.916425, 22.271035, 0)),
    Part.ArcOfCircle(Part.Circle(V(25.59373, 25.59373, 0), V(0, 0, 1), 4.699), math.radians(-45), math.radians(135)),
    Part.LineSegment(V(36.195, 4.699, 0), V(22.225, 4.699, 0)),
    Part.ArcOfCircle(Part.Circle(V(22.225, 0, 0), V(0, 0, 1), 4.699), math.radians(90), math.radians(270)),
    Part.LineSegment(V(22.225, -4.699, 0), V(36.195, -4.699, 0)),
    Part.ArcOfCircle(Part.Circle(V(36.195, 0, 0), V(0, 0, 1), 4.699), math.radians(-90), math.radians(90)),
    Part.LineSegment(V(75.692, 4.699, 0), V(61.722, 4.699, 0)),
    Part.ArcOfCircle(Part.Circle(V(61.722, 0, 0), V(0, 0, 1), 4.699), math.radians(90), math.radians(270)),
    Part.LineSegment(V(61.722, -4.699, 0), V(75.692, -4.699, 0)),
    Part.ArcOfCircle(Part.Circle(V(75.692, 0, 0), V(0, 0, 1), 4.699), math.radians(-90), math.radians(90)),
    Part.ArcOfCircle(Part.Circle(V(0, 0, 0), V(0, 0, 1), 66.421), math.radians(45), math.radians(60)),
    Part.ArcOfCircle(Part.Circle(V(30.861, 53.45282, 0), V(0, 0, 1), 4.699), math.radians(60), math.radians(240)),
    Part.ArcOfCircle(Part.Circle(V(0, 0, 0), V(0, 0, 1), 57.023), math.radians(45), math.radians(60)),
    Part.ArcOfCircle(Part.Circle(V(43.644045, 43.644045, 0), V(0, 0, 1), 4.699), math.radians(-135), math.radians(45)),
    Part.ArcOfCircle(Part.Circle(V(0, 0, 0), V(0, 0, 1), 99.949), math.radians(0), math.radians(15)),
    Part.ArcOfCircle(Part.Circle(V(92.004435, 24.652514, 0), V(0, 0, 1), 4.699), math.radians(15), math.radians(195)),
    Part.ArcOfCircle(Part.Circle(V(0, 0, 0), V(0, 0, 1), 90.551), math.radians(0), math.radians(15)),
    Part.ArcOfCircle(Part.Circle(V(95.25, 0, 0), V(0, 0, 1), 4.699), math.radians(180), math.radians(360)),
    Part.ArcOfCircle(Part.Circle(V(0, 0, 0), V(0, 0, 1), 99.949), math.radians(30), math.radians(45)),
    Part.ArcOfCircle(Part.Circle(V(67.351921, 67.351921, 0), V(0, 0, 1), 4.699), math.radians(45), math.radians(225)),
    Part.ArcOfCircle(Part.Circle(V(0, 0, 0), V(0, 0, 1), 90.551), math.radians(30), math.radians(45)),
    Part.ArcOfCircle(Part.Circle(V(82.48892, 47.625, 0), V(0, 0, 1), 4.699), math.radians(-150), math.radians(30)),
], False)
sketch4.addConstraint([
    Sketcher.Constraint("Tangent", 0, 2, 1, 1),
    Sketcher.Constraint("Tangent", 1, 2, 2, 1),
    Sketcher.Constraint("Tangent", 2, 2, 3, 1),
    Sketcher.Constraint("Tangent", 3, 2, 0, 1),
    Sketcher.Constraint("Tangent", 4, 2, 5, 1),
    Sketcher.Constraint("Tangent", 5, 2, 6, 1),
    Sketcher.Constraint("Tangent", 6, 2, 7, 1),
    Sketcher.Constraint("Tangent", 7, 2, 4, 1),
    Sketcher.Constraint("Tangent", 8, 2, 9, 1),
    Sketcher.Constraint("Tangent", 9, 2, 10, 1),
    Sketcher.Constraint("Tangent", 10, 2, 11, 1),
    Sketcher.Constraint("Tangent", 11, 2, 8, 1),
    Sketcher.Constraint("Tangent", 12, 2, 13, 1),
    Sketcher.Constraint("Tangent", 13, 2, 14, 2),
    Sketcher.Constraint("Tangent", 14, 1, 15, 1),
    Sketcher.Constraint("Tangent", 15, 2, 12, 1),
    Sketcher.Constraint("Tangent", 16, 2, 17, 1),
    Sketcher.Constraint("Tangent", 17, 2, 18, 2),
    Sketcher.Constraint("Tangent", 18, 1, 19, 1),
    Sketcher.Constraint("Tangent", 19, 2, 16, 1),
    Sketcher.Constraint("Tangent", 20, 2, 21, 1),
    Sketcher.Constraint("Tangent", 21, 2, 22, 2),
    Sketcher.Constraint("Tangent", 22, 1, 23, 1),
    Sketcher.Constraint("Tangent", 23, 2, 20, 1),
    Sketcher.Constraint("Horizontal", 4),
    Sketcher.Constraint("Horizontal", 6),
    Sketcher.Constraint("Horizontal", 8),
    Sketcher.Constraint("Horizontal", 10),
    Sketcher.Constraint("Coincident", 12, 3, -1, 1),
    Sketcher.Constraint("Coincident", 14, 3, -1, 1),
    Sketcher.Constraint("Coincident", 16, 3, -1, 1),
    Sketcher.Constraint("Coincident", 18, 3, -1, 1),
    Sketcher.Constraint("Coincident", 20, 3, -1, 1),
    Sketcher.Constraint("Coincident", 22, 3, -1, 1),
    Sketcher.Constraint("Equal", 1, 3),
    Sketcher.Constraint("Equal", 3, 5),
    Sketcher.Constraint("Equal", 7, 9),
    Sketcher.Constraint("Equal", 11, 13),
    Sketcher.Constraint("Equal", 15, 17),
    Sketcher.Constraint("Equal", 16, 20),
    Sketcher.Constraint("Equal", 19, 21),
    Sketcher.Constraint("PointOnObject", 5, 3, -1),
    Sketcher.Constraint("PointOnObject", 9, 3, -1),
    Sketcher.Constraint("PointOnObject", 19, 3, -1),
    Sketcher.Constraint("Equal", 6, 8),
    Sketcher.Constraint("Angle", 0, Q("-135 deg")),
    Sketcher.Constraint("Radius", 1, Q("0.185 in")),
    Sketcher.Constraint("Radius", 12, Q("2.615 in")),
    Sketcher.Constraint("Radius", 16, Q("3.935 in")),
    Sketcher.Constraint("DistanceX", 4, 2, 4, 1, Q("0.55 in")),
    Sketcher.Constraint("Distance", 0, Q("0.55 in")),
    Sketcher.Constraint("DistanceX", -1, 1, 9, 3, Q("2.43 in")),
    Sketcher.Constraint("DistanceX", 13, 3, 7, 3, Q("0.21 in")),
    Sketcher.Constraint("DistanceX", -1, 1, 5, 3, Q("0.875 in")),
    Sketcher.Constraint("DistanceY", -1, 1, 23, 3, Q("1.875 in")),
    Sketcher.Constraint("DistanceY", 3, 3, 13, 2, Q("0.9365999 in")),
    Sketcher.Constraint("DistanceY", 13, 3, 21, 3, 13.899101),
    Sketcher.Constraint("DistanceX", 23, 3, 16, 2, 14.054401),
    Sketcher.Constraint("DistanceX", -1, 1, 1, 3, 15.715448),
    Sketcher.Constraint("DistanceX", -1, 1, 14, 1, 40.32135),
])
pocket3 = body.newObject("PartDesign::Pocket", "Pocket002")
pocket3.Profile = sketch4
pocket3.Type = "ThroughAll"

doc.recompute()
